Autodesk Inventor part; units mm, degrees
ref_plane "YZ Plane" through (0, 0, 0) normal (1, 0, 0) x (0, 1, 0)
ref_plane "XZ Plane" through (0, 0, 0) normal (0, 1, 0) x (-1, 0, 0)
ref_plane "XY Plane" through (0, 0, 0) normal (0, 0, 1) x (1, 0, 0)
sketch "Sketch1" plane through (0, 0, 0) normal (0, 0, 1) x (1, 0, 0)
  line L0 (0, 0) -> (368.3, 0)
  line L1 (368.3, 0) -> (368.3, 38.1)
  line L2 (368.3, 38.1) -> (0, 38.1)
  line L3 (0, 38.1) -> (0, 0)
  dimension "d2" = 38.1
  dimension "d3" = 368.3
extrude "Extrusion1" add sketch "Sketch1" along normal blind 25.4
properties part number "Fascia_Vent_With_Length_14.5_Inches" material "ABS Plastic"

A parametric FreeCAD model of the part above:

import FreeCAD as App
import Part
import Sketcher
from FreeCAD import Vector
Q = App.Units.Quantity

doc = App.newDocument("Part")
body = doc.addObject("PartDesign::Body", "Body")

# Sketch on XY plane
sketch1 = body.newObject("Sketcher::SketchObject", "Sketch")
sketch1.AttachmentSupport = (doc.getObject("XY_Plane"), [""])
sketch1.MapMode = "FlatFace"
sketch1.addGeometry([
    Part.LineSegment(Vector(0, 38, 0), Vector(0, 0, 0)),
    Part.LineSegment(Vector(0, 0, 0), Vector(368, 0, 0)),
    Part.LineSegment(Vector(368, 0, 0), Vector(368, 38, 0)),
    Part.LineSegment(Vector(368, 38, 0), Vector(0, 38, 0)),
], False)
sketch1.addConstraint([
    Sketcher.Constraint("Coincident", 0, 2, 1, 1),
    Sketcher.Constraint("Coincident", 1, 2, 2, 1),
    Sketcher.Constraint("Coincident", 2, 2, 3, 1),
    Sketcher.Constraint("Coincident", 3, 2, 0, 1),
    Sketcher.Constraint("Vertical", 0),
    Sketcher.Constraint("Horizontal", 1),
    Sketcher.Constraint("Vertical", 2),
    Sketcher.Constraint("Horizontal", 3),
    Sketcher.Constraint("Coincident", 0, 2, -1, 1),
    Sketcher.Constraint("DistanceX", 1, 1, 1, 2, Q("14.5 in")),
    Sketcher.Constraint("DistanceY", 0, 2, 0, 1, Q("1.5 in")),
])
pad1 = body.newObject("PartDesign::Pad", "Pad")
pad1.Profile = sketch1
pad1.Length = Q("1 in")

doc.recompute()
